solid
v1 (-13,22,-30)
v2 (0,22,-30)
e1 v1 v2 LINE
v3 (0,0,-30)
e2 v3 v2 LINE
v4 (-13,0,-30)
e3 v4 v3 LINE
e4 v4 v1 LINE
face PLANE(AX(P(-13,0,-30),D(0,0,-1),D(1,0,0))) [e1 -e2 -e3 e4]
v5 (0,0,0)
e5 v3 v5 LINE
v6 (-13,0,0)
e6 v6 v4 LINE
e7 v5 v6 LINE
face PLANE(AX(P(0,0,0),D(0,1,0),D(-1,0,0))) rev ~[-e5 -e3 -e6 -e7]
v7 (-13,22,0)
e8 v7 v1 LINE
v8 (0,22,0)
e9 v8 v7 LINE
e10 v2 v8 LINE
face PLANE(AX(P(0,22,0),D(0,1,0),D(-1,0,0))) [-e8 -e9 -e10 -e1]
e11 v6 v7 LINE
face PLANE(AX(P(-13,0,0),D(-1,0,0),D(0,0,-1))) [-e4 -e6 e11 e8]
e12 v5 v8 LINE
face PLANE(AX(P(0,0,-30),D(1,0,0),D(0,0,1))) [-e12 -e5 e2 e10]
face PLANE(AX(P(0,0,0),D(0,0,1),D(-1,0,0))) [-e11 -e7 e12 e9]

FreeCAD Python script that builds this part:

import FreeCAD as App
import Part
import Sketcher
from FreeCAD import Vector

doc = App.newDocument("Part")
body = doc.addObject("PartDesign::Body", "Body")

# Sketch on XZ plane
sketch1 = doc.addObject("Sketcher::SketchObject", "Sketch")
body.addObject(sketch1)
sketch1.AttachmentSupport = (doc.XZ_Plane, [""])
sketch1.MapMode = "FlatFace"
sketch1.addGeometry([
    Part.LineSegment(Vector(-13, 0, 0), Vector(0, 0, 0)),
    Part.LineSegment(Vector(0, 0, 0), Vector(0, -30, 0)),
    Part.LineSegment(Vector(0, -30, 0), Vector(-13, -30, 0)),
    Part.LineSegment(Vector(-13, -30, 0), Vector(-13, 0, 0)),
], False)
sketch1.addConstraint([
    Sketcher.Constraint("Coincident", 0, 2, 1, 1),
    Sketcher.Constraint("Coincident", 1, 2, 2, 1),
    Sketcher.Constraint("Coincident", 2, 2, 3, 1),
    Sketcher.Constraint("Coincident", 3, 2, 0, 1),
    Sketcher.Constraint("Horizontal", 0),
    Sketcher.Constraint("Vertical", 1),
    Sketcher.Constraint("Horizontal", 2),
    Sketcher.Constraint("Vertical", 3),
    Sketcher.Constraint("Coincident", 0, 2, -1, 1),
    Sketcher.Constraint("DistanceX", 0, 1, 0, 2, 13.0),
    Sketcher.Constraint("DistanceY", 1, 2, 1, 1, 30.0),
])
pad1 = doc.addObject("PartDesign::Pad", "Pad")
body.addObject(pad1)
pad1.Profile = sketch1
pad1.Length = 22
pad1.Reversed = True

doc.recompute()
